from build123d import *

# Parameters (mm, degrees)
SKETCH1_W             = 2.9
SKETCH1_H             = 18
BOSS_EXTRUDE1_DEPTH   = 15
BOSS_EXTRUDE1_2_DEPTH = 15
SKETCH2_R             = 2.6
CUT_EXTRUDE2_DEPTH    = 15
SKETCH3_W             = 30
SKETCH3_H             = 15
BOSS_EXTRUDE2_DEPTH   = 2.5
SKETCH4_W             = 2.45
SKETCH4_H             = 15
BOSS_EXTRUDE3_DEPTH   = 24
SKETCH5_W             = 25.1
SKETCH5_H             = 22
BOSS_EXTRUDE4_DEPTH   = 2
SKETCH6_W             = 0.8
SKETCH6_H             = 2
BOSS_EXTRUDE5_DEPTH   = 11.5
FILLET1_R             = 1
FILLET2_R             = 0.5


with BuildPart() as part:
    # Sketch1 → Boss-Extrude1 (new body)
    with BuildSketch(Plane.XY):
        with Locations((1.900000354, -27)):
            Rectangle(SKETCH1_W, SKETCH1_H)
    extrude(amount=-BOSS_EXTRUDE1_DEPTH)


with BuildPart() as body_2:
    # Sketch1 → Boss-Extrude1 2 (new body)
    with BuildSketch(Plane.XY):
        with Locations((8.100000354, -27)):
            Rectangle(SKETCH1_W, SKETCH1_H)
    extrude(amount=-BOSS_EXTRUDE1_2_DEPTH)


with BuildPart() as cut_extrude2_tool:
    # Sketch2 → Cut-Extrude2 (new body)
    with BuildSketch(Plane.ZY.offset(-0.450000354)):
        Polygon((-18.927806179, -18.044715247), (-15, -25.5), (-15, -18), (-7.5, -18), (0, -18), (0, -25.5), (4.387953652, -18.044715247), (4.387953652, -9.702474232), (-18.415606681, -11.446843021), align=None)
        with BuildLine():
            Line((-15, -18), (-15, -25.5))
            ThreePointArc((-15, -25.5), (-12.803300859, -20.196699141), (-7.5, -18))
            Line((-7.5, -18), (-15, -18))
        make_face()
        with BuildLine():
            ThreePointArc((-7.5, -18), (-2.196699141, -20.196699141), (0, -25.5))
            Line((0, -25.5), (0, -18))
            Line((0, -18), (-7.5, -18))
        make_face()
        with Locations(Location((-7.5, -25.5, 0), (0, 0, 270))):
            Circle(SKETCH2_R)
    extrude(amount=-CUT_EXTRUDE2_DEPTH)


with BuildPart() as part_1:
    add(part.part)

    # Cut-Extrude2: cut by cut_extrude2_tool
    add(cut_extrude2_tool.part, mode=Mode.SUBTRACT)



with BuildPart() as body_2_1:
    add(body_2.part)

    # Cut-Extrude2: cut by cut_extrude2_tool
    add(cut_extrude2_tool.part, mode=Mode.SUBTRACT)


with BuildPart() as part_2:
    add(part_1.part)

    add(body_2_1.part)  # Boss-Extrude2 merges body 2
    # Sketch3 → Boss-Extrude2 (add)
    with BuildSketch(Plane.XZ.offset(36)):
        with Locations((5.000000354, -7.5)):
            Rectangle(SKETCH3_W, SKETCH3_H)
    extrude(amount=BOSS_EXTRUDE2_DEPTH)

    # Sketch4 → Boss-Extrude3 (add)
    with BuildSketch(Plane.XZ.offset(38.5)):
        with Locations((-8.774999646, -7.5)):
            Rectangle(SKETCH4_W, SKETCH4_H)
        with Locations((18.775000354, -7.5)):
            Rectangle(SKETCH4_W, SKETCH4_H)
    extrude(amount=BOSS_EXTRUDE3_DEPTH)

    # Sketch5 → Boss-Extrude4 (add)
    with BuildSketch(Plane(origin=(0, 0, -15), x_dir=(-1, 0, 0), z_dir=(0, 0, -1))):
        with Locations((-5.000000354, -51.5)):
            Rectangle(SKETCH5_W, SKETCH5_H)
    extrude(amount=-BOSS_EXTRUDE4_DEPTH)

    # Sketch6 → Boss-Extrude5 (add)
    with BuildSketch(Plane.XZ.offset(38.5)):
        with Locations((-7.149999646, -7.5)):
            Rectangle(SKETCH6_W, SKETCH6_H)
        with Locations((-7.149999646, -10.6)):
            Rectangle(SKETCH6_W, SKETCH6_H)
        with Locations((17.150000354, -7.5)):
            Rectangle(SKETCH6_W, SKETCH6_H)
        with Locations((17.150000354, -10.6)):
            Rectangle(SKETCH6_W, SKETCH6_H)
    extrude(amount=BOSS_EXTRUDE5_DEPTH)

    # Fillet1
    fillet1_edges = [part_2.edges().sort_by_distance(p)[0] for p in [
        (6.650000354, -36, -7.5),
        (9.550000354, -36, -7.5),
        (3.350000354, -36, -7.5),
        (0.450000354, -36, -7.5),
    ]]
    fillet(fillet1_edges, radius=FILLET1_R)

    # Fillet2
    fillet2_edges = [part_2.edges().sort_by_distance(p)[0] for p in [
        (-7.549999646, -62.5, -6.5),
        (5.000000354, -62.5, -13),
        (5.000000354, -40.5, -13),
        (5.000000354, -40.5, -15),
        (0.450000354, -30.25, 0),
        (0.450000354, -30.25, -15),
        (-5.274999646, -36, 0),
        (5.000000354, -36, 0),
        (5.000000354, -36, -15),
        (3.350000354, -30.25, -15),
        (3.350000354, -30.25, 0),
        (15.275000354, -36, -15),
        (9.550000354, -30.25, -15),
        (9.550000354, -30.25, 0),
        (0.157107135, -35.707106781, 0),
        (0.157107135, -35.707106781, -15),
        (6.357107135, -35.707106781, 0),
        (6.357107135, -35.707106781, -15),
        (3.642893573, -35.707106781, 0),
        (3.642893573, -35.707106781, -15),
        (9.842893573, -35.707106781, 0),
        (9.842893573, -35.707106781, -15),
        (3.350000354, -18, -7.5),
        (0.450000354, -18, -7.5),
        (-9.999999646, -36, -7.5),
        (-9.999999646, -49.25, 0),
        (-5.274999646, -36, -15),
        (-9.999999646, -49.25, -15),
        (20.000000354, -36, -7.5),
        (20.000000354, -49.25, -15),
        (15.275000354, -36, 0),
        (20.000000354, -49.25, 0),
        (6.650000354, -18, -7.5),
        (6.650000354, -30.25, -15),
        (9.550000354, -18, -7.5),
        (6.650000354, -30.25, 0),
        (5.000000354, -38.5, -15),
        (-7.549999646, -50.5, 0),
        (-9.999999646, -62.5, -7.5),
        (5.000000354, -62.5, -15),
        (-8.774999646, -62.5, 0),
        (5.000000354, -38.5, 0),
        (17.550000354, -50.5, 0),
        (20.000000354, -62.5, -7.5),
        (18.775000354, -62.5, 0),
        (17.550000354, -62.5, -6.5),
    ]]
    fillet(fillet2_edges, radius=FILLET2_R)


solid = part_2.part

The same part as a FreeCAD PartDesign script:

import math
import FreeCAD as App
import Part
import Sketcher

V = App.Vector


def edges_at(feature, points):
    """Names of the edges that pass closest to the given points."""
    edges = feature.Shape.Edges
    near = lambda p: min(range(len(edges)), key=lambda i: edges[i].distToShape(Part.Vertex(*p))[0])
    return sorted({f"Edge{near(p) + 1}" for p in points})


def add_polygon(sketch, points):
    """Adds a closed chain of lines whose ends are joined by coincident constraints."""
    first, n = sketch.GeometryCount, len(points)
    for a, b in zip(points, points[1:] + points[:1]):
        sketch.addGeometry(Part.LineSegment(App.Vector(*a, 0), App.Vector(*b, 0)), False)
    for i in range(n):
        sketch.addConstraint(Sketcher.Constraint("Coincident", first + i, 2, first + (i + 1) % n, 1))

doc = App.newDocument("Part")
body = doc.addObject("PartDesign::Body", "Body")

# Sketch on XY plane
sketch1 = body.newObject("Sketcher::SketchObject", "Sketch")
sketch1.AttachmentSupport = (doc.getObject("XY_Plane"), [""])
sketch1.MapMode = "FlatFace"
add_polygon(sketch1, [(0.45, -18), (0.45, -36), (3.35, -36), (3.35, -18)])  # lines 0-3
sketch1.addConstraint([
    Sketcher.Constraint("Vertical", 0),
    Sketcher.Constraint("Horizontal", 1),
    Sketcher.Constraint("Vertical", 2),
    Sketcher.Constraint("Horizontal", 3),
    Sketcher.Constraint("DistanceY", 0, 2, 0, 1, 18.0),
    Sketcher.Constraint("DistanceX", 1, 1, 1, 2, 2.9),
    Sketcher.Constraint("DistanceY", 0, 2, -1, 1, 36.0),
    Sketcher.Constraint("DistanceX", -1, 1, 0, 2, 0.45),
])
pad1 = body.newObject("PartDesign::Pad", "Pad")
pad1.Profile = sketch1
pad1.Length = 15
pad1.Reversed = True
body2 = doc.addObject("PartDesign::Body", "Body001")

# Sketch on XY plane
sketch2 = body2.newObject("Sketcher::SketchObject", "Sketch001")
sketch2.AttachmentSupport = (doc.getObject("XY_Plane001"), [""])
sketch2.MapMode = "FlatFace"
add_polygon(sketch2, [(6.65, -18), (6.65, -36), (9.55, -36), (9.55, -18)])  # lines 0-3
sketch2.addConstraint([
    Sketcher.Constraint("Vertical", 0),
    Sketcher.Constraint("Horizontal", 1),
    Sketcher.Constraint("Vertical", 2),
    Sketcher.Constraint("Horizontal", 3),
    Sketcher.Constraint("DistanceY", 0, 2, 0, 1, 18.0),
    Sketcher.Constraint("DistanceX", 1, 1, 1, 2, 2.9),
    Sketcher.Constraint("DistanceY", 0, 2, -1, 1, 36.0),
    Sketcher.Constraint("DistanceX", -1, 1, 0, 2, 6.65),
])
pad2 = body2.newObject("PartDesign::Pad", "Pad001")
pad2.Profile = sketch2
pad2.Length = 15
pad2.Reversed = True
body3 = doc.addObject("PartDesign::Body", "Body002")
body3.AllowCompound = True

# Sketch on YZ plane
sketch3 = body3.newObject("Sketcher::SketchObject", "Sketch002")
sketch3.AttachmentSupport = (doc.getObject("YZ_Plane002"), [""])
sketch3.MapMode = "FlatFace"
sketch3.AttachmentOffset = App.Placement(V(0, 0, 0.45), App.Rotation())
sketch3.addGeometry([
    Part.LineSegment(V(-18.044715, -18.927806, 0), V(-25.5, -15, 0)),  # 0
    Part.ArcOfCircle(Part.Circle(V(-25.5, -7.5, 0), V(0, 0, 1), 7.5), math.radians(-90), math.radians(0)),  # 1
    Part.ArcOfCircle(Part.Circle(V(-25.5, -7.5, 0), V(0, 0, 1), 7.5), math.radians(0), math.radians(90)),  # 2
    Part.LineSegment(V(-25.5, 0, 0), V(-18.044715, 4.387954, 0)),  # 3
    Part.LineSegment(V(-18.044715, 4.387954, 0), V(-9.702474, 4.387954, 0)),  # 4
    Part.LineSegment(V(-9.702474, 4.387954, 0), V(-11.446843, -18.415607, 0)),  # 5
    Part.LineSegment(V(-11.446843, -18.415607, 0), V(-18.044715, -18.927806, 0)),  # 6
    Part.Circle(V(-25.5, -7.5, 0), V(0, 0, 1), 2.6),  # 7
], False)
sketch3.addConstraint([
    Sketcher.Constraint("Coincident", 0, 2, 1, 1),
    Sketcher.Constraint("Tangent", 1, 2, 2, 1),
    Sketcher.Constraint("Coincident", 2, 2, 3, 1),
    Sketcher.Constraint("Coincident", 3, 2, 4, 1),
    Sketcher.Constraint("Coincident", 4, 2, 5, 1),
    Sketcher.Constraint("Coincident", 5, 2, 6, 1),
    Sketcher.Constraint("Coincident", 6, 2, 0, 1),
    Sketcher.Constraint("Horizontal", 4),
    Sketcher.Constraint("Coincident", 7, 3, 1, 3),
    Sketcher.Constraint("Equal", 1, 2),
    Sketcher.Constraint("PointOnObject", 2, 2, -1),
    Sketcher.Constraint("Horizontal", 7, 3, 1, 2),
    Sketcher.Constraint("Vertical", 7, 3, 0, 2),
    Sketcher.Constraint("Vertical", 0, 2, 2, 2),
    Sketcher.Constraint("Vertical", 3, 2, 6, 2),
    Sketcher.Constraint("Diameter", 7, 5.2),
    Sketcher.Constraint("Radius", 1, 7.5),
    Sketcher.Constraint("DistanceX", 1, 2, -1, 1, 18.0),
    Sketcher.Constraint("DistanceX", 4, 1, 4, 2, 8.342241),
    Sketcher.Constraint("DistanceY", 6, 2, 5, 2, 0.512199),
    Sketcher.Constraint("Distance", 0, 8.42668),
    Sketcher.Constraint("Distance", 5, 22.870181),
    Sketcher.Constraint("Distance", 3, 8.650746),
    Sketcher.Constraint("Distance", 6, 6.617724),
])
pad3 = body3.newObject("PartDesign::Pad", "Pad002")
pad3.Profile = sketch3
pad3.Length = 15
doc.recompute()

body4 = doc.addObject("PartDesign::Body", "Body003")
body4.BaseFeature = body3
boolean = body.newObject("PartDesign::Boolean", "Boolean")
boolean.Type = "Cut"
boolean.addObjects([body4])
doc.recompute()

boolean2 = body2.newObject("PartDesign::Boolean", "Boolean001")
boolean2.Type = "Cut"
boolean2.addObjects([body3])
body.AllowCompound = True
doc.recompute()

boolean3 = body.newObject("PartDesign::Boolean", "Boolean002")
boolean3.Type = "Fuse"
boolean3.addObjects([body2])

# Sketch on XZ plane
sketch4 = body.newObject("Sketcher::SketchObject", "Sketch003")
sketch4.AttachmentSupport = (doc.getObject("XZ_Plane"), [""])
sketch4.MapMode = "FlatFace"
sketch4.AttachmentOffset = App.Placement(V(0, 0, 36), App.Rotation())
add_polygon(sketch4, [(-10, 0), (-10, -15), (20, -15), (20, 0)])  # lines 0-3
sketch4.addConstraint([
    Sketcher.Constraint("Vertical", 0),
    Sketcher.Constraint("Horizontal", 1),
    Sketcher.Constraint("Vertical", 2),
    Sketcher.Constraint("Horizontal", 3),
    Sketcher.Constraint("PointOnObject", 2, 2, -1),
    Sketcher.Constraint("DistanceX", 1, 1, 1, 2, 30.0),
    Sketcher.Constraint("DistanceY", 0, 2, 0, 1, 15.0),
    Sketcher.Constraint("DistanceX", 0, 2, -1, 1, 10.0),
])
pad4 = body.newObject("PartDesign::Pad", "Pad003")
pad4.Profile = sketch4
pad4.Length = 2.5

# Sketch on XZ plane
sketch5 = body.newObject("Sketcher::SketchObject", "Sketch004")
sketch5.AttachmentSupport = (doc.getObject("XZ_Plane"), [""])
sketch5.MapMode = "FlatFace"
sketch5.AttachmentOffset = App.Placement(V(0, 0, 38.5), App.Rotation())
add_polygon(sketch5, [(-10, 0), (-10, -15), (-7.55, -15), (-7.55, 0)])  # lines 0-3
add_polygon(sketch5, [(17.55, 0), (17.55, -15), (20, -15), (20, 0)])  # lines 4-7
sketch5.addConstraint([
    Sketcher.Constraint("Vertical", 0),
    Sketcher.Constraint("Horizontal", 1),
    Sketcher.Constraint("Vertical", 2),
    Sketcher.Constraint("Horizontal", 3),
    Sketcher.Constraint("Vertical", 4),
    Sketcher.Constraint("Horizontal", 5),
    Sketcher.Constraint("Vertical", 6),
    Sketcher.Constraint("Horizontal", 7),
    Sketcher.Constraint("PointOnObject", 2, 2, -1),
    Sketcher.Constraint("PointOnObject", 6, 2, -1),
    Sketcher.Constraint("Horizontal", 1, 2, 4, 2),
    Sketcher.Constraint("Equal", 3, 5),
    Sketcher.Constraint("DistanceY", 0, 2, 0, 1, 15.0),
    Sketcher.Constraint("DistanceX", 0, 2, -1, 1, 10.0),
    Sketcher.Constraint("DistanceX", -1, 1, 5, 2, 20.0),
    Sketcher.Constraint("DistanceX", 1, 1, 1, 2, 2.45),
])
pad5 = body.newObject("PartDesign::Pad", "Pad004")
pad5.Profile = sketch5
pad5.Length = 24

# Sketch on XY plane
sketch6 = body.newObject("Sketcher::SketchObject", "Sketch005")
sketch6.AttachmentSupport = (doc.getObject("XY_Plane"), [""])
sketch6.MapMode = "FlatFace"
sketch6.AttachmentOffset = App.Placement(V(0, 0, -15), App.Rotation())
add_polygon(sketch6, [(17.55, -40.5), (17.55, -62.5), (-7.55, -62.5), (-7.55, -40.5)])  # lines 0-3
sketch6.addConstraint([
    Sketcher.Constraint("Vertical", 0),
    Sketcher.Constraint("Horizontal", 1),
    Sketcher.Constraint("Vertical", 2),
    Sketcher.Constraint("Horizontal", 3),
    Sketcher.Constraint("DistanceY", 0, 2, 0, 1, 22.0),
    Sketcher.Constraint("DistanceX", 1, 2, 1, 1, 25.1),
    Sketcher.Constraint("DistanceY", 0, 2, -1, 1, 62.5),
    Sketcher.Constraint("DistanceX", -1, 1, 0, 2, 17.55),
])
pad6 = body.newObject("PartDesign::Pad", "Pad005")
pad6.Profile = sketch6
pad6.Length = 2

# Sketch on XZ plane
sketch7 = body.newObject("Sketcher::SketchObject", "Sketch006")
sketch7.AttachmentSupport = (doc.getObject("XZ_Plane"), [""])
sketch7.MapMode = "FlatFace"
sketch7.AttachmentOffset = App.Placement(V(0, 0, 38.5), App.Rotation())
add_polygon(sketch7, [(-7.55, -6.5), (-7.55, -8.5), (-6.75, -8.5), (-6.75, -6.5)])  # lines 0-3
add_polygon(sketch7, [(-7.55, -9.6), (-7.55, -11.6), (-6.75, -11.6), (-6.75, -9.6)])  # lines 4-7
add_polygon(sketch7, [(16.75, -6.5), (16.75, -8.5), (17.55, -8.5), (17.55, -6.5)])  # lines 8-11
add_polygon(sketch7, [(16.75, -9.6), (16.75, -11.6), (17.55, -11.6), (17.55, -9.6)])  # lines 12-15
sketch7.addConstraint([
    Sketcher.Constraint("Vertical", 0),
    Sketcher.Constraint("Horizontal", 1),
    Sketcher.Constraint("Vertical", 2),
    Sketcher.Constraint("Horizontal", 3),
    Sketcher.Constraint("Vertical", 4),
    Sketcher.Constraint("Horizontal", 5),
    Sketcher.Constraint("Vertical", 6),
    Sketcher.Constraint("Horizontal", 7),
    Sketcher.Constraint("Vertical", 8),
    Sketcher.Constraint("Horizontal", 9),
    Sketcher.Constraint("Vertical", 10),
    Sketcher.Constraint("Horizontal", 11),
    Sketcher.Constraint("Vertical", 12),
    Sketcher.Constraint("Horizontal", 13),
    Sketcher.Constraint("Vertical", 14),
    Sketcher.Constraint("Horizontal", 15),
    Sketcher.Constraint("Horizontal", 1, 2, 8, 2),
    Sketcher.Constraint("Horizontal", 3, 2, 10, 2),
    Sketcher.Constraint("Horizontal", 5, 2, 12, 2),
    Sketcher.Constraint("Horizontal", 7, 2, 14, 2),
    Sketcher.Constraint("Vertical", 3, 2, 4, 2),
    Sketcher.Constraint("Vertical", 2, 2, 5, 2),
    Sketcher.Constraint("Vertical", 11, 2, 12, 2),
    Sketcher.Constraint("Vertical", 10, 2, 13, 2),
    Sketcher.Constraint("Equal", 7, 9),
    Sketcher.Constraint("Equal", 2, 4),
    Sketcher.Constraint("DistanceY", 0, 2, 0, 1, 2.0),
    Sketcher.Constraint("DistanceX", 1, 1, 1, 2, 0.8),
    Sketcher.Constraint("DistanceY", 0, 2, -1, 1, 8.5),
    Sketcher.Constraint("DistanceY", 4, 2, -1, 1, 11.6),
    Sketcher.Constraint("DistanceX", 1, 2, 8, 2, 23.5),
    Sketcher.Constraint("DistanceX", 0, 2, -1, 1, 7.55),
])
pad7 = body.newObject("PartDesign::Pad", "Pad006")
pad7.Profile = sketch7
pad7.Length = 11.5
doc.recompute()

fillet = body.newObject("PartDesign::Fillet", "Fillet")
fillet.Base = (pad7, edges_at(pad7, [
    (6.65, -36, -7.5),
    (9.55, -36, -7.5),
    (3.35, -36, -7.5),
    (0.45, -36, -7.5),
]))
fillet.Radius = 1
doc.recompute()

fillet2 = body.newObject("PartDesign::Fillet", "Fillet001")
fillet2.Base = (fillet, edges_at(fillet, [
    (-7.55, -62.5, -6.5),
    (5, -62.5, -13),
    (5, -40.5, -13),
    (5, -40.5, -15),
    (0.45, -30.25, 0),
    (0.45, -30.25, -15),
    (-5.275, -36, 0),
    (5, -36, 0),
    (5, -36, -15),
    (3.35, -30.25, -15),
    (3.35, -30.25, 0),
    (15.275, -36, -15),
    (9.55, -30.25, -15),
    (9.55, -30.25, 0),
    (0.157, -35.707, 0),
    (0.157, -35.707, -15),
    (6.357, -35.707, 0),
    (6.357, -35.707, -15),
    (3.643, -35.707, 0),
    (3.643, -35.707, -15),
    (9.843, -35.707, 0),
    (9.843, -35.707, -15),
    (3.35, -20.197, -2.197),
    (0.45, -20.197, -2.197),
    (-10, -36, -7.5),
    (-10, -49.25, 0),
    (-5.275, -36, -15),
    (-10, -49.25, -15),
    (20, -36, -7.5),
    (20, -49.25, -15),
    (15.275, -36, 0),
    (20, -49.25, 0),
    (6.65, -20.197, -2.197),
    (6.65, -30.25, -15),
    (9.55, -20.197, -2.197),
    (6.65, -30.25, 0),
    (5, -38.5, -15),
    (-7.55, -50.5, 0),
    (-10, -62.5, -7.5),
    (5, -62.5, -15),
    (-8.775, -62.5, 0),
    (5, -38.5, 0),
    (17.55, -50.5, 0),
    (20, -62.5, -7.5),
    (18.775, -62.5, 0),
    (17.55, -62.5, -6.5),
]))
fillet2.Radius = 0.5

doc.recompute()
